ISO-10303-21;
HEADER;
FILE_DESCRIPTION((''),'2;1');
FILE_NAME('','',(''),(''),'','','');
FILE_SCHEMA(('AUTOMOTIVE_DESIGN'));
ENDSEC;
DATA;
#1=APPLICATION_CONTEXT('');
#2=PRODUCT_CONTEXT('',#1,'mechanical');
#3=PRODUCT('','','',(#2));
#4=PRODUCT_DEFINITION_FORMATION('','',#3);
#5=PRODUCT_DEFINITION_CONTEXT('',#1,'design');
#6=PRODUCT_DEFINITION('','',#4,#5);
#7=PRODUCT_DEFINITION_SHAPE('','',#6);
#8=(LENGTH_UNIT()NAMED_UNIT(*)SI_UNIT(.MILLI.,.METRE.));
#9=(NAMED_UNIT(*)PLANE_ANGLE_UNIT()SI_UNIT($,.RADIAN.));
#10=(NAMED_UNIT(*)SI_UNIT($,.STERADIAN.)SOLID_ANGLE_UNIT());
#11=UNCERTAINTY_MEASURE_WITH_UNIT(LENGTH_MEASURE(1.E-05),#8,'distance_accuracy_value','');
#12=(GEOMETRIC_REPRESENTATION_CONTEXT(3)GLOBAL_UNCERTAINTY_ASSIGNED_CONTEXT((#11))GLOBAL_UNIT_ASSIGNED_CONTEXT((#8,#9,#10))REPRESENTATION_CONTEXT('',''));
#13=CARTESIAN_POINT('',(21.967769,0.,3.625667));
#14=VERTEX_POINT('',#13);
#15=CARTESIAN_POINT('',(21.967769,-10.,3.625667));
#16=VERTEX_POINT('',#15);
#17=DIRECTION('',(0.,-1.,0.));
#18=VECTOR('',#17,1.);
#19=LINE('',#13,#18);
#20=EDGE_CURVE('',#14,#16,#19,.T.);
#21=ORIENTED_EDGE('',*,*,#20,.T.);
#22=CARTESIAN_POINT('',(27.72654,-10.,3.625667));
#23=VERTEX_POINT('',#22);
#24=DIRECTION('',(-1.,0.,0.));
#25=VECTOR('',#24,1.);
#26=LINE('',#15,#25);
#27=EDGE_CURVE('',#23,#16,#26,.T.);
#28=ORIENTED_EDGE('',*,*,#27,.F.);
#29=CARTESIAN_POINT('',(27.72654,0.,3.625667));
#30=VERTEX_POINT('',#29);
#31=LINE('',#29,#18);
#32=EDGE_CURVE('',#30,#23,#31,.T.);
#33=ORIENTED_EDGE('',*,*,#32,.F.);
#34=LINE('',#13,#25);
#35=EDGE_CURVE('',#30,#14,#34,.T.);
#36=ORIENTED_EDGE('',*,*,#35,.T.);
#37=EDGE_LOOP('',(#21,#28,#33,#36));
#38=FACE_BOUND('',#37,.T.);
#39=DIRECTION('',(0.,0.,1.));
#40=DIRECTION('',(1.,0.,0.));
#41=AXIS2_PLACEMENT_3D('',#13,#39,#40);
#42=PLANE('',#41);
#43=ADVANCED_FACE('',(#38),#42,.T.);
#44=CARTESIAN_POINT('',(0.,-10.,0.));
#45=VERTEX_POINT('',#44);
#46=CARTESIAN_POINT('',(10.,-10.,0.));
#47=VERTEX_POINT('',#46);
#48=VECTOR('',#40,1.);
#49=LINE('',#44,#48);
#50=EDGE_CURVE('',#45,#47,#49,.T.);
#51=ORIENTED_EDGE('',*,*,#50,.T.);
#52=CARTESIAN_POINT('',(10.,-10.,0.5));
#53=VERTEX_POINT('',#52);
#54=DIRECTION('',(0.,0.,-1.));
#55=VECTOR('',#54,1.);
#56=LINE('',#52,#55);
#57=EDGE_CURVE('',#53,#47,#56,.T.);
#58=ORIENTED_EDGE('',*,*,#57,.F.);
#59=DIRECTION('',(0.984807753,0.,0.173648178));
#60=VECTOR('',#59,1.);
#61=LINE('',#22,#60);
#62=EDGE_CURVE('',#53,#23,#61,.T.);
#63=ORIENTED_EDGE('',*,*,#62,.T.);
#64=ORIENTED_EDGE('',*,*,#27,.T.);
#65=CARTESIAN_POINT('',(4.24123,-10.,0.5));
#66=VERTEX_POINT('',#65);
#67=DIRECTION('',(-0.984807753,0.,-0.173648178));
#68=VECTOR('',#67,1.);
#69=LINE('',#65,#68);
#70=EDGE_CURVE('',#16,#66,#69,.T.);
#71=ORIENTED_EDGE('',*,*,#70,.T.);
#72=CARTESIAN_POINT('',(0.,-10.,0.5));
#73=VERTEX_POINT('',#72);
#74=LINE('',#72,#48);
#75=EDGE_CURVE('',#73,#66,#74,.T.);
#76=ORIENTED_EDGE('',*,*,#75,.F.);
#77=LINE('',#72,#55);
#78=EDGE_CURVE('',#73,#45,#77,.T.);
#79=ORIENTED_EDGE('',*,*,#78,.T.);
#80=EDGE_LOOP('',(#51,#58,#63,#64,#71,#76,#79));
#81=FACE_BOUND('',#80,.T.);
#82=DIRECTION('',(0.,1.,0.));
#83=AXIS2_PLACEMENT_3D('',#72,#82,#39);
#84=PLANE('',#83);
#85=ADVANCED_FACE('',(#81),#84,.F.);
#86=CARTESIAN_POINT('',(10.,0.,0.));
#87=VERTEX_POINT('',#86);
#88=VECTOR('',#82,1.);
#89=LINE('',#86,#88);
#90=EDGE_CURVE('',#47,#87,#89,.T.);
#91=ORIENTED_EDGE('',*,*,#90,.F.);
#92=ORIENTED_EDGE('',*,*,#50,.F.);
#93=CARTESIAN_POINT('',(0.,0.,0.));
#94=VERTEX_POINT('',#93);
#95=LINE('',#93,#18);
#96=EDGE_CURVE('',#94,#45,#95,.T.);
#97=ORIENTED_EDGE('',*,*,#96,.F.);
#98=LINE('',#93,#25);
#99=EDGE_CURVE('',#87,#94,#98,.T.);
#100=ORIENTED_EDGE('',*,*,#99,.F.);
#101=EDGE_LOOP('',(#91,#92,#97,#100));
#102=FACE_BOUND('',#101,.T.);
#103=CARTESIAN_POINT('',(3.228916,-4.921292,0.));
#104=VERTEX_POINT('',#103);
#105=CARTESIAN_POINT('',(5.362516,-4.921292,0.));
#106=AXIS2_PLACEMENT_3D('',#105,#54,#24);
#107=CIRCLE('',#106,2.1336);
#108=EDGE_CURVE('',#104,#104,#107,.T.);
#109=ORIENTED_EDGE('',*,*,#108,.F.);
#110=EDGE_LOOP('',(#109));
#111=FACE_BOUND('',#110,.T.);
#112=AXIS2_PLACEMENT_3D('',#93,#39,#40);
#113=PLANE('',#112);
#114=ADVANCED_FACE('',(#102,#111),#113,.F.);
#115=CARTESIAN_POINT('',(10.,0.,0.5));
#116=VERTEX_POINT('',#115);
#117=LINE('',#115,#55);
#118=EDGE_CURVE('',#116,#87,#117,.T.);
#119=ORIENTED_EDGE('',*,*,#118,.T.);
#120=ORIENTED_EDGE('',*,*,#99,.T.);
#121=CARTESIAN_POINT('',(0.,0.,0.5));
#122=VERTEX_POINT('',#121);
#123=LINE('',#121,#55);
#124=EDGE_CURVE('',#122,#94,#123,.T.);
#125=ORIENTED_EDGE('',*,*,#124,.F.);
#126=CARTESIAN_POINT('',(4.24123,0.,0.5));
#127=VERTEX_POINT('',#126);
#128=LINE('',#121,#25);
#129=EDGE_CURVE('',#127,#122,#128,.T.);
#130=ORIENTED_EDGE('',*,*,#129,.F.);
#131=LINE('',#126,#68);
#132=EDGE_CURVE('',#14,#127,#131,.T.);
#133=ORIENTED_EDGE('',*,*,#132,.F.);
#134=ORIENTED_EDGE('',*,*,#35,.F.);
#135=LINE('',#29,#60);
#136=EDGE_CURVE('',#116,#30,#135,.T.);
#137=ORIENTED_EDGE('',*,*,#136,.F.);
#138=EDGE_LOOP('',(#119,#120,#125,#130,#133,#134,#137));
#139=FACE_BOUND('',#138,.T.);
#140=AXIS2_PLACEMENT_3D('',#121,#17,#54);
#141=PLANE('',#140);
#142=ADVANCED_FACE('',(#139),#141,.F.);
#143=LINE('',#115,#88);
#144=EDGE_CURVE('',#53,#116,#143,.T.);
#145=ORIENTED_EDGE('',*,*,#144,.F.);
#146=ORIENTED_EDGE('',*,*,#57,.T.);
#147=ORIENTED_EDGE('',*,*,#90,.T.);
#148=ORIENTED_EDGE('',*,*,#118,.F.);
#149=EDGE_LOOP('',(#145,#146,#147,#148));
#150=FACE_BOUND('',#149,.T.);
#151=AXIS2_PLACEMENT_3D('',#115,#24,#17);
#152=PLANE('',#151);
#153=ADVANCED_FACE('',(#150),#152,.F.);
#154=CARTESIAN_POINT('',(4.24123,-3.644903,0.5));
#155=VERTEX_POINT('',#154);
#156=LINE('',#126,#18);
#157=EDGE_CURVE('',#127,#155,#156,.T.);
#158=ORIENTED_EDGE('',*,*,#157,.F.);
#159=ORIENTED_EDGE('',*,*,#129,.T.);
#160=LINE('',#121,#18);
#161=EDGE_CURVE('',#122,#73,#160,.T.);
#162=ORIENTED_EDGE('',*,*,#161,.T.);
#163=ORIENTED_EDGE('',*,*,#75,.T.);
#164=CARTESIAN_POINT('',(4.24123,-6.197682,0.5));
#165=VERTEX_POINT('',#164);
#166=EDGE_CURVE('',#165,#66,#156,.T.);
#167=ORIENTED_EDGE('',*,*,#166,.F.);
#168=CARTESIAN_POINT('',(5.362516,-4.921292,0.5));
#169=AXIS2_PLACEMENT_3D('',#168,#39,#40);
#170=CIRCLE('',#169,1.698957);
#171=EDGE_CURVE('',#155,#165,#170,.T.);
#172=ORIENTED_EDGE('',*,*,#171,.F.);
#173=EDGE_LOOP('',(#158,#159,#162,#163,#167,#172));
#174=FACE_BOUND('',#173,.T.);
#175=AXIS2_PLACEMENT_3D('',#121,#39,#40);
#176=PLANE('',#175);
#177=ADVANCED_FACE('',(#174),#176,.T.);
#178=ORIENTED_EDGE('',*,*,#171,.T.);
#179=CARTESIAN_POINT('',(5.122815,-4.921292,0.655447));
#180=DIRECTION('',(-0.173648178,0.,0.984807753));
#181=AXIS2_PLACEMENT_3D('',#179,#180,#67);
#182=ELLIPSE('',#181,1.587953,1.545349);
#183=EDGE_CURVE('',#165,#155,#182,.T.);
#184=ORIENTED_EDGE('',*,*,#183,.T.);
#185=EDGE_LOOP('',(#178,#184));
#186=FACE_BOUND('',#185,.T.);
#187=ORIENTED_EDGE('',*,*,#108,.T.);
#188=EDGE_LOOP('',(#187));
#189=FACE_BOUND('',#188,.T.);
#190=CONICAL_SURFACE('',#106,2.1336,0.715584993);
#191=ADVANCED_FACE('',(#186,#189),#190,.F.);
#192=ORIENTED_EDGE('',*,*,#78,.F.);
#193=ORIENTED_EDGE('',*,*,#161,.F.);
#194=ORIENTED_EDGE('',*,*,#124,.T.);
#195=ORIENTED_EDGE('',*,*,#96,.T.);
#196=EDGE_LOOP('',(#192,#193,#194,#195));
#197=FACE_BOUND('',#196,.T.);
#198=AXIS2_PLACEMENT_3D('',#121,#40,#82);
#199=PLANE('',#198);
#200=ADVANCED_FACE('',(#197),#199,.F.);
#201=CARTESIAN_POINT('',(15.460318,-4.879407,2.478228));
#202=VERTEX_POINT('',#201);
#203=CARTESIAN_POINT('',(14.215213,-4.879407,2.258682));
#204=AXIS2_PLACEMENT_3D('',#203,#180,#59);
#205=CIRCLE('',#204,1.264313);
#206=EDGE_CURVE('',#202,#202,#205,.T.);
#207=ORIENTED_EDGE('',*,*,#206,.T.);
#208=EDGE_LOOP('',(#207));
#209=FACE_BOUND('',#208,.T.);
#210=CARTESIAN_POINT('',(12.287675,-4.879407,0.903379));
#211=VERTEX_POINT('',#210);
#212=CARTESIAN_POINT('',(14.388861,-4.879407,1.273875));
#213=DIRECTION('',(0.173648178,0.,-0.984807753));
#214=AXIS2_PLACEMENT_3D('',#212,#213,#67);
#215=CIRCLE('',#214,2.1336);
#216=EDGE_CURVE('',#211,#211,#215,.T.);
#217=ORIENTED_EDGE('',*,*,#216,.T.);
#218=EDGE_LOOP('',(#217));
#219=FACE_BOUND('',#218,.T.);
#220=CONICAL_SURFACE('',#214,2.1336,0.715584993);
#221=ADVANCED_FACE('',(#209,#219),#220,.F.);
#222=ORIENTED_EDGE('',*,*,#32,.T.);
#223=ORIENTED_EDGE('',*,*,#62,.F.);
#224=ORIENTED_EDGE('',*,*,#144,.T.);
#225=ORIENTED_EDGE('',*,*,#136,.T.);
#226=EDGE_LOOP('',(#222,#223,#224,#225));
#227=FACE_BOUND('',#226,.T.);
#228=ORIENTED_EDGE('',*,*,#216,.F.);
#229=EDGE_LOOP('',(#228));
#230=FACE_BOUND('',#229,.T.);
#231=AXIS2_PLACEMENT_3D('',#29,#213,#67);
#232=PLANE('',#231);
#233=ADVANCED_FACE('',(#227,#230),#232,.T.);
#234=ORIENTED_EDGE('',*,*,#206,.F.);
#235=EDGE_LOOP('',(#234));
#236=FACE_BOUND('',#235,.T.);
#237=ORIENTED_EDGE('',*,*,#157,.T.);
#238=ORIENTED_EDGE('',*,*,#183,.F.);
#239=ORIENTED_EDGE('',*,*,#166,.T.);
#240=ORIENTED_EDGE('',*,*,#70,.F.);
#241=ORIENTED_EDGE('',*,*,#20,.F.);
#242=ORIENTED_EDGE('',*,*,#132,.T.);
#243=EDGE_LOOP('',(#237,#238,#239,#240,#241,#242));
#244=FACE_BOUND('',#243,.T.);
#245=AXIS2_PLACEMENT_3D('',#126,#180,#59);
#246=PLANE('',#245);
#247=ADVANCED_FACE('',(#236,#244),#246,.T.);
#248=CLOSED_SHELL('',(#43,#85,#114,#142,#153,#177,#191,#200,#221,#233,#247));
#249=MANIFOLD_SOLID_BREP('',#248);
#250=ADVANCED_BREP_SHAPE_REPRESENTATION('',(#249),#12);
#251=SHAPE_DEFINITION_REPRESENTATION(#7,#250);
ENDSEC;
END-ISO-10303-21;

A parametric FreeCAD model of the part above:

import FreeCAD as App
import Part
import Sketcher

V = App.Vector
Q = App.Units.Quantity

doc = App.newDocument("Part")
body = doc.addObject("PartDesign::Body", "Body")

# Sketch on XY plane
sketch1 = body.newObject("Sketcher::SketchObject", "Sketch")
sketch1.AttachmentSupport = (doc.getObject("XY_Plane"), [""])
sketch1.MapMode = "FlatFace"
sketch1.addGeometry(Part.LineSegment(V(0, 0, 0), V(0, -10, 0)), False)
sketch1.addGeometry(Part.LineSegment(V(0, -10, 0), V(10, -10, 0)), False)
sketch1.addGeometry(Part.LineSegment(V(10, -10, 0), V(10, 0, 0)), False)
sketch1.addGeometry(Part.LineSegment(V(10, 0, 0), V(0, 0, 0)), False)
sketch1.addConstraint(Sketcher.Constraint("Coincident", 0, 2, 1, 1))
sketch1.addConstraint(Sketcher.Constraint("Coincident", 1, 2, 2, 1))
sketch1.addConstraint(Sketcher.Constraint("Coincident", 2, 2, 3, 1))
sketch1.addConstraint(Sketcher.Constraint("Coincident", 3, 2, 0, 1))
sketch1.addConstraint(Sketcher.Constraint("Vertical", 0))
sketch1.addConstraint(Sketcher.Constraint("Horizontal", 1))
sketch1.addConstraint(Sketcher.Constraint("Vertical", 2))
sketch1.addConstraint(Sketcher.Constraint("Horizontal", 3))
sketch1.addConstraint(Sketcher.Constraint("Coincident", 3, 2, -1, 1))
sketch1.addConstraint(Sketcher.Constraint("Equal", 3, 0))
sketch1.addConstraint(Sketcher.Constraint("DistanceX", 1, 1, 1, 2, 10.0))
pad1 = body.newObject("PartDesign::Pad", "Pad")
pad1.Profile = sketch1
pad1.Length = 0.5

# Sketch on XZ plane
sketch2 = body.newObject("Sketcher::SketchObject", "Sketch001")
sketch2.AttachmentSupport = (doc.getObject("XZ_Plane"), [""])
sketch2.MapMode = "FlatFace"
sketch2.AttachmentOffset = App.Placement(V(0, 0, 10), App.Rotation())
sketch2.addGeometry(Part.LineSegment(V(21.967769, 3.625667, 0), V(4.24123, 0.5, 0)), False)
sketch2.addGeometry(Part.LineSegment(V(4.24123, 0.5, 0), V(10, 0.5, 0)), False)
sketch2.addGeometry(Part.LineSegment(V(10, 0.5, 0), V(27.72654, 3.625667, 0)), False)
sketch2.addGeometry(Part.LineSegment(V(27.72654, 3.625667, 0), V(21.967769, 3.625667, 0)), False)
sketch2.addConstraint(Sketcher.Constraint("Coincident", 0, 2, 1, 1))
sketch2.addConstraint(Sketcher.Constraint("Coincident", 1, 2, 2, 1))
sketch2.addConstraint(Sketcher.Constraint("Coincident", 2, 2, 3, 1))
sketch2.addConstraint(Sketcher.Constraint("Coincident", 3, 2, 0, 1))
sketch2.addConstraint(Sketcher.Constraint("Horizontal", 1))
sketch2.addConstraint(Sketcher.Constraint("Horizontal", 3))
sketch2.addConstraint(Sketcher.Constraint("Parallel", 0, 2))
sketch2.addConstraint(Sketcher.Constraint("Angle", 0, Q("-170 deg")))
sketch2.addConstraint(Sketcher.Constraint("Distance", 0, 18.0))
sketch2.addConstraint(Sketcher.Constraint("DistanceX", -1, 1, 1, 2, 10.0))
sketch2.addConstraint(Sketcher.Constraint("DistanceY", -1, 1, 0, 2, 0.5))
sketch2.addConstraint(Sketcher.Constraint("DistanceX", 1, 1, 1, 2, 5.75877))
pad2 = body.newObject("PartDesign::Pad", "Pad001")
pad2.Profile = sketch2
pad2.Length = 10
pad2.Reversed = True

# Sketch on XY plane
sketch3 = body.newObject("Sketcher::SketchObject", "Sketch002")
sketch3.AttachmentSupport = (doc.getObject("XY_Plane"), [""])
sketch3.MapMode = "FlatFace"
sketch3.addGeometry(Part.Circle(V(5.362516, -4.921292, 0), V(0, 0, 1), 1.0287), False)
sketch3.addConstraint(Sketcher.Constraint("Diameter", 0, 2.0574))
sketch3.addConstraint(Sketcher.Constraint("DistanceX", -1, 1, 0, 3, 5.362516))
sketch3.addConstraint(Sketcher.Constraint("DistanceY", 0, 3, -1, 1, 4.921292))
doc.recompute()
hole = body.newObject("PartDesign::Hole", "Hole")
hole.Profile = sketch3
hole.ThreadType = "None"
hole.Diameter = 2.0574
hole.DepthType = "ThroughAll"
hole.HoleCutType = "Countersink"
hole.HoleCutDiameter = 4.2672
hole.HoleCutCountersinkAngle = 82
hole.Reversed = True

# Sketch on an angled plane
sketch4 = body.newObject("Sketcher::SketchObject", "Sketch003")
sketch4.Placement = App.Placement(V(0.216032, 0, -1.225178), App.Rotation(V(-0.984807753, 0, -0.173648178), V(0, 1, 0), V(0.173648178, 0, -0.984807753), "ZXY"))
sketch4.addGeometry(Part.Circle(V(-14.391468, -4.879407, 0), V(0, 0, 1), 1.0287), False)
sketch4.addConstraint(Sketcher.Constraint("Diameter", 0, 2.0574))
sketch4.addConstraint(Sketcher.Constraint("DistanceX", 0, 3, -1, 1, 14.391468))
sketch4.addConstraint(Sketcher.Constraint("DistanceY", 0, 3, -1, 1, 4.879407))
doc.recompute()
hole2 = body.newObject("PartDesign::Hole", "Hole001")
hole2.Profile = sketch4
hole2.ThreadType = "None"
hole2.Diameter = 2.0574
hole2.DepthType = "ThroughAll"
hole2.HoleCutType = "Countersink"
hole2.HoleCutDiameter = 4.2672
hole2.HoleCutCountersinkAngle = 82

doc.recompute()
